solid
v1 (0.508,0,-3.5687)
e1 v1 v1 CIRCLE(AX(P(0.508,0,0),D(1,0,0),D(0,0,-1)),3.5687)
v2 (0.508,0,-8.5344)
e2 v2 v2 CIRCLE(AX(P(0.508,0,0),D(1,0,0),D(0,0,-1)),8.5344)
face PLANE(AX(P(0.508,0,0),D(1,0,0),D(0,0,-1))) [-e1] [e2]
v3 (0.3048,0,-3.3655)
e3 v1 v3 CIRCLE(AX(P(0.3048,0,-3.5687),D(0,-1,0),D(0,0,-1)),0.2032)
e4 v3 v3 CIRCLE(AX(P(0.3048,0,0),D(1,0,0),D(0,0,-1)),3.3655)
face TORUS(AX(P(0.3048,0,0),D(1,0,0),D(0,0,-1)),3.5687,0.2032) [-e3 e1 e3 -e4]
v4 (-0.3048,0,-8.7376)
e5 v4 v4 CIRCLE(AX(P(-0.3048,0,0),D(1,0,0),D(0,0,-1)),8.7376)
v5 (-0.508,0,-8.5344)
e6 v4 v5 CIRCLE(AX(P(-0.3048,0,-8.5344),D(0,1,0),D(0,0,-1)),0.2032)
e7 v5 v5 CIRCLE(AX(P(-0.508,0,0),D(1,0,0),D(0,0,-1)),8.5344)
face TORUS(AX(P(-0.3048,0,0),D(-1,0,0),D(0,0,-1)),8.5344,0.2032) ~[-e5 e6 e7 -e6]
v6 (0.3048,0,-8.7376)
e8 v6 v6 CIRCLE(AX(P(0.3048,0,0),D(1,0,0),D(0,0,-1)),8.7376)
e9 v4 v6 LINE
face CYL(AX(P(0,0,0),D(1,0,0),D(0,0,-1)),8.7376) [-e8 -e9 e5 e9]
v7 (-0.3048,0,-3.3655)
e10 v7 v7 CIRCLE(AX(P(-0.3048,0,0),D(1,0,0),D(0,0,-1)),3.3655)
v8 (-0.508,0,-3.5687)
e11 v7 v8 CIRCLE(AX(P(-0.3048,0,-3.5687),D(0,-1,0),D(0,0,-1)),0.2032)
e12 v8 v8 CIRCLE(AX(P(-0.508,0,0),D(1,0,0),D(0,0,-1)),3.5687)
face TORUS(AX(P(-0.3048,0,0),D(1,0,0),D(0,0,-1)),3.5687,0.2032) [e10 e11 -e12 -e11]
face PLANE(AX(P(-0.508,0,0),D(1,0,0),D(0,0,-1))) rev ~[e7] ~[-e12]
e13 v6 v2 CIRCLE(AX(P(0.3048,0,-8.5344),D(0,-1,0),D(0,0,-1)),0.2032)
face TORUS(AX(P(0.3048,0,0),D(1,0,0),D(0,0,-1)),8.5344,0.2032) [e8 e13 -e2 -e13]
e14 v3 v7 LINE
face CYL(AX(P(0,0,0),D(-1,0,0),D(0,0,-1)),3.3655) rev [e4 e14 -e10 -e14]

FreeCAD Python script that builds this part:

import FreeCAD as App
import Part
import Sketcher
from FreeCAD import Vector
Q = App.Units.Quantity


def edges_at(feature, points):
    """Names of the edges that pass closest to the given points."""
    edges = feature.Shape.Edges
    near = lambda p: min(range(len(edges)), key=lambda i: edges[i].distToShape(Part.Vertex(*p))[0])
    return sorted({f"Edge{near(p) + 1}" for p in points})

doc = App.newDocument("Part")
body = doc.addObject("PartDesign::Body", "Body")

sketch1 = doc.addObject("Sketcher::SketchObject", "Sketch")
body.addObject(sketch1)
sketch1.AttachmentSupport = (doc.YZ_Plane, [""])
sketch1.MapMode = "FlatFace"
sketch1.addGeometry([
    Part.Circle(Vector(0, 0, 0), Vector(0, 0, 1), 8.7),
    Part.Circle(Vector(0, 0, 0), Vector(0, 0, 1), 3.4),
], False)
sketch1.addConstraint([
    Sketcher.Constraint("Coincident", 0, 3, -1, 1),
    Sketcher.Constraint("Coincident", 1, 3, -1, 1),
    Sketcher.Constraint("Diameter", 0, Q("0.688 in")),
    Sketcher.Constraint("Diameter", 1, Q("0.265 in")),
])
pad1 = doc.addObject("PartDesign::Pad", "Pad")
body.addObject(pad1)
pad1.Profile = sketch1
pad1.Length = Q("0.04 in")
pad1.Midplane = True
doc.recompute()

fillet = doc.addObject("PartDesign::Fillet", "Fillet")
body.addObject(fillet)
fillet.Base = (pad1, edges_at(pad1, [
    (-0.508, 0, 8.738),
    (0.508, 0, 8.738),
    (-0.508, 0, 3.365),
    (0.508, 0, 3.365),
]))
fillet.Radius = Q("0.008 in")

doc.recompute()
